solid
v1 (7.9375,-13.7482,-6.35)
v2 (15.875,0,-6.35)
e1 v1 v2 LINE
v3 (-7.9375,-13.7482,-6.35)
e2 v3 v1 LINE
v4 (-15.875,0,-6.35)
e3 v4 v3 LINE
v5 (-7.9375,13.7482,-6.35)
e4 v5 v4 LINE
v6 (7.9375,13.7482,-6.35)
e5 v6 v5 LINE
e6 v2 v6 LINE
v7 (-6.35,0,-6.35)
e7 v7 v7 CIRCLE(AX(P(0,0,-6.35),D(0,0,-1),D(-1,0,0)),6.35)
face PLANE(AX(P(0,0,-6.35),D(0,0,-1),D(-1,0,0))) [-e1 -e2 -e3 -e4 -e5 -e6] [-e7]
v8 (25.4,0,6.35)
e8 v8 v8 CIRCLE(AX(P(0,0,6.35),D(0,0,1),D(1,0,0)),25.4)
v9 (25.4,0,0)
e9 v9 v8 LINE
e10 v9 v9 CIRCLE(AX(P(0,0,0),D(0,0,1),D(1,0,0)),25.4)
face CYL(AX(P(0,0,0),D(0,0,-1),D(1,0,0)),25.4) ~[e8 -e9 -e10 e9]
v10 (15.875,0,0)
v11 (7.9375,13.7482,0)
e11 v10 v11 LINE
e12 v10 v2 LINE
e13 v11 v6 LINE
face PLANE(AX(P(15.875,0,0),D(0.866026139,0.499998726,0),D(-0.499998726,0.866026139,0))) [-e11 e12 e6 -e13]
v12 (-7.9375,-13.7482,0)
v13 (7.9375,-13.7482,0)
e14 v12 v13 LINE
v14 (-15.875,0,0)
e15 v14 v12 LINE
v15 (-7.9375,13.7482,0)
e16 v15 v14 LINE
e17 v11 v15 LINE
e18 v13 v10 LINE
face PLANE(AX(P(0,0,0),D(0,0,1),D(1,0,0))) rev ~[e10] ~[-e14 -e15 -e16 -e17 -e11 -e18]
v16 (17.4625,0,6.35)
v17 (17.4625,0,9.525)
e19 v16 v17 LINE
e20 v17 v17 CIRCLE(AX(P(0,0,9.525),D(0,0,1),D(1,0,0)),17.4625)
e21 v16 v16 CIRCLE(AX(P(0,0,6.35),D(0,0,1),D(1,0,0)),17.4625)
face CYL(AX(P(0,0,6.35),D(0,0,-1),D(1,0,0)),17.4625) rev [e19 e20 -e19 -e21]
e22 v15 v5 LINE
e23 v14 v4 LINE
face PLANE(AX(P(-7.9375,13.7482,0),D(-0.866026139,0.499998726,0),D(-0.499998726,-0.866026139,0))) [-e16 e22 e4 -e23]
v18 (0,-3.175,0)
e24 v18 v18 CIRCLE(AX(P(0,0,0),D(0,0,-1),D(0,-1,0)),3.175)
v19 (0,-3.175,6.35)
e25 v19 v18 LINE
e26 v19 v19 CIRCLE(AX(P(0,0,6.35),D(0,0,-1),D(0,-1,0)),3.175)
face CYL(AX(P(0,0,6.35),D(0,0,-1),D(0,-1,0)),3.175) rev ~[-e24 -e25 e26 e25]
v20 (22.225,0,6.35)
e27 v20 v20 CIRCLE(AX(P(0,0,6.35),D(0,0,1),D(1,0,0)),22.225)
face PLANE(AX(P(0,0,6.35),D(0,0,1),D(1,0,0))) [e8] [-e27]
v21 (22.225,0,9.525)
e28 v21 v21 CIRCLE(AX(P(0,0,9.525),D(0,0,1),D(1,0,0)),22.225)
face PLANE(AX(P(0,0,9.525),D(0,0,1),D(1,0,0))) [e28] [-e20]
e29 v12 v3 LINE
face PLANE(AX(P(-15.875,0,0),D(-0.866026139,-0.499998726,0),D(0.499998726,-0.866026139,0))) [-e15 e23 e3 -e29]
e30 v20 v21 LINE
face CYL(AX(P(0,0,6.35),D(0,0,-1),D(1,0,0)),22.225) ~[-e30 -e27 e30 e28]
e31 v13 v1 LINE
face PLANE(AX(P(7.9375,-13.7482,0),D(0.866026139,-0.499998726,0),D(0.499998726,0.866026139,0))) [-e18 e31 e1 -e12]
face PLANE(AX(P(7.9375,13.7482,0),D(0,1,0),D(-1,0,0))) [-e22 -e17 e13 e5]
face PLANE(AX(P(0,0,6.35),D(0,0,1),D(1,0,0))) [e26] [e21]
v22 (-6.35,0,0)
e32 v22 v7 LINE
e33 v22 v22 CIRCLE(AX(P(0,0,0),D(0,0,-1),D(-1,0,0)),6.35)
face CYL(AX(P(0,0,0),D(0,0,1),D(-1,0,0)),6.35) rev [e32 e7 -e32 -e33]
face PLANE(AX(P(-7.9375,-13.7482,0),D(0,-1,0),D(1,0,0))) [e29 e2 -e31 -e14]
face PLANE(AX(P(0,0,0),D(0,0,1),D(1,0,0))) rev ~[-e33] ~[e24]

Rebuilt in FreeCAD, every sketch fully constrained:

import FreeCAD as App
import Part
import Sketcher
Q = App.Units.Quantity

doc = App.newDocument("Part")
body = doc.addObject("PartDesign::Body", "Body")

# Sketch on XY plane
sketch1 = body.newObject("Sketcher::SketchObject", "Sketch")
sketch1.AttachmentSupport = (doc.getObject("XY_Plane"), [""])
sketch1.MapMode = "FlatFace"
sketch1.addGeometry(Part.Circle(App.Vector(0, 0, 0), App.Vector(0, 0, 1), 25), False)
sketch1.addConstraint(Sketcher.Constraint("Coincident", 0, 3, -1, 1))
sketch1.addConstraint(Sketcher.Constraint("Diameter", 0, Q("2 in")))
pad1 = body.newObject("PartDesign::Pad", "Pad")
pad1.Profile = sketch1
pad1.Length = Q("0.25 in")

# Sketch on XY plane
sketch2 = body.newObject("Sketcher::SketchObject", "Sketch001")
sketch2.AttachmentSupport = (doc.getObject("XY_Plane"), [""])
sketch2.MapMode = "FlatFace"
sketch2.AttachmentOffset = App.Placement(App.Vector(0, 0, 0.25 * 25.4), App.Rotation())
sketch2.addGeometry(Part.Circle(App.Vector(0, 0, 0), App.Vector(0, 0, 1), 22), False)
sketch2.addGeometry(Part.Circle(App.Vector(0, 0, 0), App.Vector(0, 0, 1), 17), False)
sketch2.addConstraint(Sketcher.Constraint("Coincident", 0, 3, -1, 1))
sketch2.addConstraint(Sketcher.Constraint("Coincident", 1, 3, -1, 1))
sketch2.addConstraint(Sketcher.Constraint("Diameter", 0, Q("1.75 in")))
sketch2.addConstraint(Sketcher.Constraint("Diameter", 1, Q("1.375 in")))
pad2 = body.newObject("PartDesign::Pad", "Pad001")
pad2.Profile = sketch2
pad2.Length = Q("0.125 in")

# Sketch on XY plane
sketch3 = body.newObject("Sketcher::SketchObject", "Sketch002")
sketch3.AttachmentSupport = (doc.getObject("XY_Plane"), [""])
sketch3.MapMode = "FlatFace"
sketch3.addGeometry(Part.LineSegment(App.Vector(8, 14, 0), App.Vector(16, 0, 0)), False)
sketch3.addGeometry(Part.LineSegment(App.Vector(16, 0, 0), App.Vector(8, -14, 0)), False)
sketch3.addGeometry(Part.LineSegment(App.Vector(8, -14, 0), App.Vector(-8, -14, 0)), False)
sketch3.addGeometry(Part.LineSegment(App.Vector(-8, -14, 0), App.Vector(-16, 0, 0)), False)
sketch3.addGeometry(Part.LineSegment(App.Vector(-16, 0, 0), App.Vector(-8, 14, 0)), False)
sketch3.addGeometry(Part.LineSegment(App.Vector(-8, 14, 0), App.Vector(8, 14, 0)), False)
sketch3.addGeometry(Part.Circle(App.Vector(0, 0, 0), App.Vector(0, 0, 1), 6), False)
sketch3.addConstraint(Sketcher.Constraint("Coincident", 0, 2, 1, 1))
sketch3.addConstraint(Sketcher.Constraint("Coincident", 1, 2, 2, 1))
sketch3.addConstraint(Sketcher.Constraint("Coincident", 2, 2, 3, 1))
sketch3.addConstraint(Sketcher.Constraint("Coincident", 3, 2, 4, 1))
sketch3.addConstraint(Sketcher.Constraint("Coincident", 4, 2, 5, 1))
sketch3.addConstraint(Sketcher.Constraint("Coincident", 5, 2, 0, 1))
sketch3.addConstraint(Sketcher.Constraint("Horizontal", 2))
sketch3.addConstraint(Sketcher.Constraint("Horizontal", 5))
sketch3.addConstraint(Sketcher.Constraint("Coincident", 6, 3, -1, 1))
sketch3.addConstraint(Sketcher.Constraint("Symmetric", 0, 2, 3, 2, -1, 1))
sketch3.addConstraint(Sketcher.Constraint("Symmetric", 1, 2, 4, 2, -1, 1))
sketch3.addConstraint(Sketcher.Constraint("PointOnObject", 0, 2, -1))
sketch3.addConstraint(Sketcher.Constraint("Parallel", 0, 3))
sketch3.addConstraint(Sketcher.Constraint("Vertical", 2, 2, 4, 2))
sketch3.addConstraint(Sketcher.Constraint("Diameter", 6, Q("0.5 in")))
sketch3.addConstraint(Sketcher.Constraint("DistanceX", 2, 2, 2, 1, Q("0.625 in")))
sketch3.addConstraint(Sketcher.Constraint("Distance", 0, Q("0.625 in")))
sketch3.addConstraint(Sketcher.Constraint("DistanceX", -1, 1, 0, 2, Q("0.625 in")))
pad3 = body.newObject("PartDesign::Pad", "Pad002")
pad3.Profile = sketch3
pad3.Length = Q("0.25 in")
pad3.Reversed = True

# Sketch on XY plane
sketch4 = body.newObject("Sketcher::SketchObject", "Sketch003")
sketch4.AttachmentSupport = (doc.getObject("XY_Plane"), [""])
sketch4.MapMode = "FlatFace"
sketch4.AttachmentOffset = App.Placement(App.Vector(0, 0, 0.25 * 25.4), App.Rotation())
sketch4.addGeometry(Part.Circle(App.Vector(0, 0, 0), App.Vector(0, 0, 1), 3.2), False)
sketch4.addConstraint(Sketcher.Constraint("Coincident", 0, 3, -1, 1))
sketch4.addConstraint(Sketcher.Constraint("Diameter", 0, Q("0.25 in")))
doc.recompute()
hole = body.newObject("PartDesign::Hole", "Hole")
hole.Profile = sketch4
hole.ThreadType = "None"
hole.Diameter = Q("0.25 in")
hole.DepthType = "ThroughAll"

doc.recompute()
